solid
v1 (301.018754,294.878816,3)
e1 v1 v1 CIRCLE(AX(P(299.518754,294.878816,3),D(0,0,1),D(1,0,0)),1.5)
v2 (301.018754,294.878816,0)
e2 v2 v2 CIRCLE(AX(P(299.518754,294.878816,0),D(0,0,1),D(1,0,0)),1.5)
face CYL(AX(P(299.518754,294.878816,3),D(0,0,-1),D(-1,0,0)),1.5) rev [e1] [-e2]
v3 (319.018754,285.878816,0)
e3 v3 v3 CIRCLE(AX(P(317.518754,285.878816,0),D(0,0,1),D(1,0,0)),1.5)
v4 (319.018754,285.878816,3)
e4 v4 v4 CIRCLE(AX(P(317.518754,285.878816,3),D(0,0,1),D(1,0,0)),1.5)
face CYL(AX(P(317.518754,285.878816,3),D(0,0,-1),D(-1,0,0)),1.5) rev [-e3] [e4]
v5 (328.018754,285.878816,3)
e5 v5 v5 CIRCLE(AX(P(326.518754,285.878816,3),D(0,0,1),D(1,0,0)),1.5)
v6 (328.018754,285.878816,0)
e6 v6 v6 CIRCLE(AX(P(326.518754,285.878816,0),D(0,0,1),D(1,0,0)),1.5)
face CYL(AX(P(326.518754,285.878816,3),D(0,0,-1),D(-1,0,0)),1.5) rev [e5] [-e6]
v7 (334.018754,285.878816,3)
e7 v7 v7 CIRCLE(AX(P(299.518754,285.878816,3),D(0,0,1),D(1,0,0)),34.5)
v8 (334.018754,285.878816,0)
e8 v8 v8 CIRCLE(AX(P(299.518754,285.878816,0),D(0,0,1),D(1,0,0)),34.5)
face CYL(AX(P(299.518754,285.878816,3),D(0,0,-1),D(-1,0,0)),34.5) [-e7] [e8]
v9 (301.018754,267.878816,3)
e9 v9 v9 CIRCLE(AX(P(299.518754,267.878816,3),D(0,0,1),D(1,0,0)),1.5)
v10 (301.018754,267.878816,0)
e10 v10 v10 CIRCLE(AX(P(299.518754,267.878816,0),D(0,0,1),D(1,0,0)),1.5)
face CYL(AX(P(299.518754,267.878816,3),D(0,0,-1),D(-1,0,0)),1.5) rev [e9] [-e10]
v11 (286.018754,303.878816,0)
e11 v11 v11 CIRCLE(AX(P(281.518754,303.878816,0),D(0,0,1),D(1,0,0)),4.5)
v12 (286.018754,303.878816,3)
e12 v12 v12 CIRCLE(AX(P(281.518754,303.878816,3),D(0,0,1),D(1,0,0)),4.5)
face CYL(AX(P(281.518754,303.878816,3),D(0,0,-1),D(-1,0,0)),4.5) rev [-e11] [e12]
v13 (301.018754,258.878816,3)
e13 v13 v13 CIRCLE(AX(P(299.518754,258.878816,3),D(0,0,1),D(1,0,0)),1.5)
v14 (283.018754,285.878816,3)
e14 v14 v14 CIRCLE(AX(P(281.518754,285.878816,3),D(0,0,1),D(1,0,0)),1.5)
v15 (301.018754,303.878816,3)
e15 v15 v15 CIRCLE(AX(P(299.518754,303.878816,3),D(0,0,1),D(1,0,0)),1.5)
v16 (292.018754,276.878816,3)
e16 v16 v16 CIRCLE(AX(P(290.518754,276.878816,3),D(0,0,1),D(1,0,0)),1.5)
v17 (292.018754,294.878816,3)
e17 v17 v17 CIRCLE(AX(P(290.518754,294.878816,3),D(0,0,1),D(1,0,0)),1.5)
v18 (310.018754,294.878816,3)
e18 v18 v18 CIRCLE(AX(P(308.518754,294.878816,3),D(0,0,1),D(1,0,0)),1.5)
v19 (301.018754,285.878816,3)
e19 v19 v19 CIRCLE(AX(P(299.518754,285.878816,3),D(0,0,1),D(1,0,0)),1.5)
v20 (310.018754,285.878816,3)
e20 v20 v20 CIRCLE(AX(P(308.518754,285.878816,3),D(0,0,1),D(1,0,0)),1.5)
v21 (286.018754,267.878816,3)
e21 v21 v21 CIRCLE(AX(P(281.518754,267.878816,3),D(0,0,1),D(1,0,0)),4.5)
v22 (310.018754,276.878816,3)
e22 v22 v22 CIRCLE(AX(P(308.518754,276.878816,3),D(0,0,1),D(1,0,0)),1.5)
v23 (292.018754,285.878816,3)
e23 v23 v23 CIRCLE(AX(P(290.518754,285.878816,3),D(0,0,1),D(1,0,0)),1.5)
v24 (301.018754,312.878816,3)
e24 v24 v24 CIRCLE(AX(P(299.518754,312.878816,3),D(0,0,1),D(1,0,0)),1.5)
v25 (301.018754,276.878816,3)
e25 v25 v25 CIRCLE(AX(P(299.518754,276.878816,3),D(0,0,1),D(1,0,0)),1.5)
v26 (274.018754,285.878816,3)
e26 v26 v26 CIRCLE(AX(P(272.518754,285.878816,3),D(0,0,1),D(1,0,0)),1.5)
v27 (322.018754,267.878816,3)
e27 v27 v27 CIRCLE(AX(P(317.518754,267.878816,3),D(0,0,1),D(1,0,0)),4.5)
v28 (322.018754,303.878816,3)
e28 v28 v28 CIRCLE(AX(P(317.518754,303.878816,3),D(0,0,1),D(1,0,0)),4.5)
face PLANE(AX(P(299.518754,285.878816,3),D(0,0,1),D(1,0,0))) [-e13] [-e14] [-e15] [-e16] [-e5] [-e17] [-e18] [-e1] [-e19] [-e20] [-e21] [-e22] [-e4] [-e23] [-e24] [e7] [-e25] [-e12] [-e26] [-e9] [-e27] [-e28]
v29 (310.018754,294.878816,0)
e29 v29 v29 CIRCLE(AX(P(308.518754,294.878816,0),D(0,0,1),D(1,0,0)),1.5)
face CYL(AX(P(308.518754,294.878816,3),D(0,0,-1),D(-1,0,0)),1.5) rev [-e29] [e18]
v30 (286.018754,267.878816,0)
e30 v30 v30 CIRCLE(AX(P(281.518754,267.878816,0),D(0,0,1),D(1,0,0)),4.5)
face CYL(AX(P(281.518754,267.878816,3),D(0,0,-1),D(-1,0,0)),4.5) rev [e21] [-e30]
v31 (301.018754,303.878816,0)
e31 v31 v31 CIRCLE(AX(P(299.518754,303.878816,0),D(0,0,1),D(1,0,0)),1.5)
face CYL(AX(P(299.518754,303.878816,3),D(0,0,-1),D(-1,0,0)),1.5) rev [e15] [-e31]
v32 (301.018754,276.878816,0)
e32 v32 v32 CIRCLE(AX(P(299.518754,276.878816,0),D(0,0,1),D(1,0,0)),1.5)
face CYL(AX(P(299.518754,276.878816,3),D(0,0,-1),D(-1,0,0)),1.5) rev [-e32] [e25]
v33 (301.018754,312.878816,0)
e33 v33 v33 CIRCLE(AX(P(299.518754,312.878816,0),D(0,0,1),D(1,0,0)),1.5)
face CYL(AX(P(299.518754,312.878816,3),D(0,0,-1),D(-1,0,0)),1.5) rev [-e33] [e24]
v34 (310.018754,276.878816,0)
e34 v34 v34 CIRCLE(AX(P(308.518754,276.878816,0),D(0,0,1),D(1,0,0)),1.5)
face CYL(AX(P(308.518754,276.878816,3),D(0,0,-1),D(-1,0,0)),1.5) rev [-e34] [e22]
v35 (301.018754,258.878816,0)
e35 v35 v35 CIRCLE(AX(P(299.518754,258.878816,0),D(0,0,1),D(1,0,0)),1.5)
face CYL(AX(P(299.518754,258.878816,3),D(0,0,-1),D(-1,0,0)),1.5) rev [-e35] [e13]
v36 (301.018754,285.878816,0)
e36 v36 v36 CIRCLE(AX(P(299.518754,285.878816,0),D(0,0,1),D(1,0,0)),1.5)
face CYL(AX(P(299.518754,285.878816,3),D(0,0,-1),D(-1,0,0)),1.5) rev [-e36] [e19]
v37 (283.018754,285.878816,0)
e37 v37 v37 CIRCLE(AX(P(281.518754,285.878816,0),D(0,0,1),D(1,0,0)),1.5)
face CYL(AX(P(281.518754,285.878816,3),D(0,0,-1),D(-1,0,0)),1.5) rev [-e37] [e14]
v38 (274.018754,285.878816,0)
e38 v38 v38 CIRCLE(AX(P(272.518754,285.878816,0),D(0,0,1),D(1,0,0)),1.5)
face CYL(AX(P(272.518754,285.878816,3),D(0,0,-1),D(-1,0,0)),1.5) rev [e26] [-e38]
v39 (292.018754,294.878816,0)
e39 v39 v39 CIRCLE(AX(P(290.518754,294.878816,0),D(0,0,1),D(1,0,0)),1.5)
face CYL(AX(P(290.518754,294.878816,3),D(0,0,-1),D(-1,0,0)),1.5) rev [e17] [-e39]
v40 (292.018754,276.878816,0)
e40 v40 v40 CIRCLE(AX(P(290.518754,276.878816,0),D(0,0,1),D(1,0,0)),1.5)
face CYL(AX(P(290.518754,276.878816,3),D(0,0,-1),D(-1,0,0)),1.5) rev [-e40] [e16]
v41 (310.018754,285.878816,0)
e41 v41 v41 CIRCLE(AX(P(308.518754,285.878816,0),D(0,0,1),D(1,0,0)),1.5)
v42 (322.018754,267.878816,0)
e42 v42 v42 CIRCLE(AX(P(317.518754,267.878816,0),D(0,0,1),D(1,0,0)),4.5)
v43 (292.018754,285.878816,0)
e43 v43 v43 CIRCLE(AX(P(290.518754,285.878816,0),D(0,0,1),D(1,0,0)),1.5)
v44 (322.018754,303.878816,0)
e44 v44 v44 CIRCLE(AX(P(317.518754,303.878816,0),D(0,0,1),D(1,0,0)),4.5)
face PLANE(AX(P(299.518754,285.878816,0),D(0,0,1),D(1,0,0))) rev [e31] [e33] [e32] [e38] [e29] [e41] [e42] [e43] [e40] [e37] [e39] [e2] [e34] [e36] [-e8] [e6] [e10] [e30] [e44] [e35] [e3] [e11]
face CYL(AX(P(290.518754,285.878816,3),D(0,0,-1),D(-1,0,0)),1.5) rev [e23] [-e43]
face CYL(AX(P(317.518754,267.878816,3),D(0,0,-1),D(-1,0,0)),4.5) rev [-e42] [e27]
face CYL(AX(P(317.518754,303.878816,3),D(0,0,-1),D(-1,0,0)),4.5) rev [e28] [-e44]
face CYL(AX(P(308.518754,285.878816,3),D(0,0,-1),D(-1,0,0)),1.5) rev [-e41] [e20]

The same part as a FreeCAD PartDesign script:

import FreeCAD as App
import Part
import Sketcher

V = App.Vector

doc = App.newDocument("Part")
body = doc.addObject("PartDesign::Body", "Body")

# Sketch on XY plane
sketch1 = body.newObject("Sketcher::SketchObject", "Sketch")
sketch1.AttachmentSupport = (doc.getObject("XY_Plane"), [""])
sketch1.MapMode = "FlatFace"
sketch1.addGeometry([
    Part.Circle(V(299.5, 285.9, 0), V(0, 0, 1), 34.5),  # 0
    Part.Circle(V(281.5, 267.9, 0), V(0, 0, 1), 4.5),  # 1
    Part.Circle(V(290.5, 276.9, 0), V(0, 0, 1), 1.5),  # 2
    Part.Circle(V(299.5, 258.9, 0), V(0, 0, 1), 1.5),  # 3
    Part.Circle(V(299.5, 267.9, 0), V(0, 0, 1), 1.5),  # 4
    Part.Circle(V(317.5, 267.9, 0), V(0, 0, 1), 4.5),  # 5
    Part.Circle(V(299.5, 276.9, 0), V(0, 0, 1), 1.5),  # 6
    Part.Circle(V(308.5, 276.9, 0), V(0, 0, 1), 1.5),  # 7
    Part.Circle(V(272.5, 285.9, 0), V(0, 0, 1), 1.5),  # 8
    Part.Circle(V(281.5, 285.9, 0), V(0, 0, 1), 1.5),  # 9
    Part.Circle(V(290.5, 285.9, 0), V(0, 0, 1), 1.5),  # 10
    Part.Circle(V(290.5, 294.9, 0), V(0, 0, 1), 1.5),  # 11
    Part.Circle(V(281.5, 303.9, 0), V(0, 0, 1), 4.5),  # 12
    Part.Circle(V(299.5, 285.9, 0), V(0, 0, 1), 1.5),  # 13
    Part.Circle(V(308.5, 285.9, 0), V(0, 0, 1), 1.5),  # 14
    Part.Circle(V(299.5, 294.9, 0), V(0, 0, 1), 1.5),  # 15
    Part.Circle(V(308.5, 294.9, 0), V(0, 0, 1), 1.5),  # 16
    Part.Circle(V(317.5, 285.9, 0), V(0, 0, 1), 1.5),  # 17
    Part.Circle(V(326.5, 285.9, 0), V(0, 0, 1), 1.5),  # 18
    Part.Circle(V(299.5, 303.9, 0), V(0, 0, 1), 1.5),  # 19
    Part.Circle(V(299.5, 312.9, 0), V(0, 0, 1), 1.5),  # 20
    Part.Circle(V(317.5, 303.9, 0), V(0, 0, 1), 4.5),  # 21
], False)
sketch1.addConstraint([
    Sketcher.Constraint("Coincident", 13, 3, 0, 3),
    Sketcher.Constraint("Equal", 2, 3),
    Sketcher.Constraint("Equal", 3, 4),
    Sketcher.Constraint("Equal", 1, 5),
    Sketcher.Constraint("Equal", 4, 6),
    Sketcher.Constraint("Equal", 6, 7),
    Sketcher.Constraint("Equal", 7, 8),
    Sketcher.Constraint("Equal", 8, 9),
    Sketcher.Constraint("Equal", 9, 10),
    Sketcher.Constraint("Equal", 10, 11),
    Sketcher.Constraint("Equal", 5, 12),
    Sketcher.Constraint("Equal", 11, 13),
    Sketcher.Constraint("Equal", 13, 14),
    Sketcher.Constraint("Equal", 14, 15),
    Sketcher.Constraint("Equal", 15, 16),
    Sketcher.Constraint("Equal", 16, 17),
    Sketcher.Constraint("Equal", 17, 18),
    Sketcher.Constraint("Equal", 18, 19),
    Sketcher.Constraint("Equal", 19, 20),
    Sketcher.Constraint("Equal", 12, 21),
    Sketcher.Constraint("Horizontal", 1, 3, 4, 3),
    Sketcher.Constraint("Horizontal", 4, 3, 5, 3),
    Sketcher.Constraint("Horizontal", 2, 3, 6, 3),
    Sketcher.Constraint("Horizontal", 6, 3, 7, 3),
    Sketcher.Constraint("Horizontal", 0, 3, 8, 3),
    Sketcher.Constraint("Horizontal", 8, 3, 9, 3),
    Sketcher.Constraint("Horizontal", 9, 3, 10, 3),
    Sketcher.Constraint("Horizontal", 13, 3, 14, 3),
    Sketcher.Constraint("Horizontal", 11, 3, 15, 3),
    Sketcher.Constraint("Horizontal", 15, 3, 16, 3),
    Sketcher.Constraint("Horizontal", 14, 3, 17, 3),
    Sketcher.Constraint("Horizontal", 17, 3, 18, 3),
    Sketcher.Constraint("Horizontal", 12, 3, 19, 3),
    Sketcher.Constraint("Horizontal", 19, 3, 21, 3),
    Sketcher.Constraint("Vertical", 0, 3, 3, 3),
    Sketcher.Constraint("Vertical", 3, 3, 4, 3),
    Sketcher.Constraint("Vertical", 4, 3, 6, 3),
    Sketcher.Constraint("Vertical", 1, 3, 9, 3),
    Sketcher.Constraint("Vertical", 2, 3, 10, 3),
    Sketcher.Constraint("Vertical", 10, 3, 11, 3),
    Sketcher.Constraint("Vertical", 9, 3, 12, 3),
    Sketcher.Constraint("Vertical", 7, 3, 14, 3),
    Sketcher.Constraint("Vertical", 13, 3, 15, 3),
    Sketcher.Constraint("Vertical", 14, 3, 16, 3),
    Sketcher.Constraint("Vertical", 5, 3, 17, 3),
    Sketcher.Constraint("Vertical", 15, 3, 19, 3),
    Sketcher.Constraint("Vertical", 19, 3, 20, 3),
    Sketcher.Constraint("Vertical", 17, 3, 21, 3),
    Sketcher.Constraint("Diameter", 0, 69.0),
    Sketcher.Constraint("Diameter", 1, 9.0),
    Sketcher.Constraint("Diameter", 2, 3.0),
    Sketcher.Constraint("DistanceX", 1, 3, 0, 3, 18.0),
    Sketcher.Constraint("DistanceY", 1, 3, 0, 3, 18.0),
    Sketcher.Constraint("DistanceX", 2, 3, 0, 3, 9.0),
    Sketcher.Constraint("DistanceY", 2, 3, 0, 3, 9.0),
    Sketcher.Constraint("DistanceY", 3, 3, 1, 3, 9.0),
    Sketcher.Constraint("DistanceX", 4, 3, 5, 3, 18.0),
    Sketcher.Constraint("DistanceX", 6, 3, 7, 3, 9.0),
    Sketcher.Constraint("DistanceX", 8, 3, 1, 3, 9.0),
    Sketcher.Constraint("DistanceY", 10, 3, 11, 3, 9.0),
    Sketcher.Constraint("DistanceY", 11, 3, 12, 3, 9.0),
    Sketcher.Constraint("DistanceX", 17, 3, 18, 3, 9.0),
    Sketcher.Constraint("DistanceY", 19, 3, 20, 3, 9.0),
    Sketcher.Constraint("DistanceX", -1, 1, 0, 3, 299.518754),
    Sketcher.Constraint("DistanceY", -1, 1, 0, 3, 285.878816),
])
pad1 = body.newObject("PartDesign::Pad", "Pad")
pad1.Profile = sketch1
pad1.Length = 3

doc.recompute()
